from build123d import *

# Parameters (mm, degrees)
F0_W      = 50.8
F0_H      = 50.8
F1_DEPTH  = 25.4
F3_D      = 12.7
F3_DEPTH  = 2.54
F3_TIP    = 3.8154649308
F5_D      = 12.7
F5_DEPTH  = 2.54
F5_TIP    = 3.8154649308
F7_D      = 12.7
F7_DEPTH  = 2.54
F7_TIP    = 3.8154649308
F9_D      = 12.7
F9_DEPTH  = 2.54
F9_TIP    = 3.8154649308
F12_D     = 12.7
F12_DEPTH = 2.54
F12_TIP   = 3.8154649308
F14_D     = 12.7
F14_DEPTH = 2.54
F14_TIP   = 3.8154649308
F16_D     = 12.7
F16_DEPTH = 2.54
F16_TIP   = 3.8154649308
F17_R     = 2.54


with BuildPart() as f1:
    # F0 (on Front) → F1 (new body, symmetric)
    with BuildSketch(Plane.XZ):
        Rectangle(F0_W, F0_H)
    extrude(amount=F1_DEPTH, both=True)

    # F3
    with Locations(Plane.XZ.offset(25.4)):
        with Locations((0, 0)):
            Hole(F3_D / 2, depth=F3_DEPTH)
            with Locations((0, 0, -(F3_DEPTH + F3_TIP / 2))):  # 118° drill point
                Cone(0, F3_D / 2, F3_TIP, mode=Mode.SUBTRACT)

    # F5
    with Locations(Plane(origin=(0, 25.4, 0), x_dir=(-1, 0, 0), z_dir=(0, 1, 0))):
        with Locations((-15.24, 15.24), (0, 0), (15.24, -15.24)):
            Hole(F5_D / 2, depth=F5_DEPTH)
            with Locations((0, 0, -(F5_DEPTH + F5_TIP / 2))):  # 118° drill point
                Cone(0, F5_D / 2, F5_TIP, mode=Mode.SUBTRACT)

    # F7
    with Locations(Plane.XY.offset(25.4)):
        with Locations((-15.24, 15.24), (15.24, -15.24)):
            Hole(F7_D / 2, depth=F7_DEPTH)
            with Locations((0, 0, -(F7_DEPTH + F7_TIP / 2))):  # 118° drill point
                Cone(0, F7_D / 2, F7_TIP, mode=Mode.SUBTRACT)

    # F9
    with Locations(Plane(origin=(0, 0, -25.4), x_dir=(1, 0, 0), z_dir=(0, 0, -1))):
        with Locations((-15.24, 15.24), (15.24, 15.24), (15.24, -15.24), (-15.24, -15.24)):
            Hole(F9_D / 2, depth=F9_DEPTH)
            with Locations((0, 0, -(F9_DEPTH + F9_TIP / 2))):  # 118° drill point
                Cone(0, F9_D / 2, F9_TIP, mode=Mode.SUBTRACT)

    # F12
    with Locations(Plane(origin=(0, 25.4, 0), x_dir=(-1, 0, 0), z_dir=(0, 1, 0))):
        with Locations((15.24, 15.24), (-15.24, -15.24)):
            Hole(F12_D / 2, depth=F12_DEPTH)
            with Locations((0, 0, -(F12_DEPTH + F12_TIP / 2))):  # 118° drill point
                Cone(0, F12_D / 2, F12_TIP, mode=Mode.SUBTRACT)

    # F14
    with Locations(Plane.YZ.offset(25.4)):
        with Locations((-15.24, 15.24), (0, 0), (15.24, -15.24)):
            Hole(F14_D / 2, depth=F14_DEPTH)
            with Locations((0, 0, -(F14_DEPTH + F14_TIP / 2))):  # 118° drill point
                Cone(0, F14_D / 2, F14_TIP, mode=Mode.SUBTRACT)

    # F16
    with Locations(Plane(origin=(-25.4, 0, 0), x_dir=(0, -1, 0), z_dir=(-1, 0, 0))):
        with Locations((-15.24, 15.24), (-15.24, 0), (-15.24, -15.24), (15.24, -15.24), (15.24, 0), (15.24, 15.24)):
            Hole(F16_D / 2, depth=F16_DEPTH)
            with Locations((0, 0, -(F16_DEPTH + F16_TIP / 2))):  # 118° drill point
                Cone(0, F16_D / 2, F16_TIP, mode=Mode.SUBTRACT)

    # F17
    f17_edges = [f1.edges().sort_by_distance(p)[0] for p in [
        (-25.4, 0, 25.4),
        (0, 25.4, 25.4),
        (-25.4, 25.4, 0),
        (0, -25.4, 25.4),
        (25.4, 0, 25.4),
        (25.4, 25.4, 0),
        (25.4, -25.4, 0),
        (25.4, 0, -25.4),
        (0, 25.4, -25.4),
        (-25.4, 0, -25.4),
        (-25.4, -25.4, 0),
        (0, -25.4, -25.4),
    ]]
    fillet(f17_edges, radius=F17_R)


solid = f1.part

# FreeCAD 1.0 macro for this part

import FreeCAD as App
import Part
import Sketcher
from FreeCAD import Vector
Q = App.Units.Quantity


def edges_at(feature, points):
    """Names of the edges that pass closest to the given points."""
    edges = feature.Shape.Edges
    near = lambda p: min(range(len(edges)), key=lambda i: edges[i].distToShape(Part.Vertex(*p))[0])
    return sorted({f"Edge{near(p) + 1}" for p in points})

doc = App.newDocument("Part")
body = doc.addObject("PartDesign::Body", "Body")

sketch1 = body.newObject("Sketcher::SketchObject", "Sketch")
sketch1.AttachmentSupport = (doc.getObject("XZ_Plane"), [""])
sketch1.MapMode = "FlatFace"
sketch1.addGeometry([
    Part.LineSegment(Vector(-25, 25, 0), Vector(-25, -25, 0)),
    Part.LineSegment(Vector(-25, -25, 0), Vector(25, -25, 0)),
    Part.LineSegment(Vector(25, -25, 0), Vector(25, 25, 0)),
    Part.LineSegment(Vector(25, 25, 0), Vector(-25, 25, 0)),
], False)
sketch1.addConstraint([
    Sketcher.Constraint("Coincident", 0, 2, 1, 1),
    Sketcher.Constraint("Coincident", 1, 2, 2, 1),
    Sketcher.Constraint("Coincident", 2, 2, 3, 1),
    Sketcher.Constraint("Coincident", 3, 2, 0, 1),
    Sketcher.Constraint("Vertical", 0),
    Sketcher.Constraint("Horizontal", 1),
    Sketcher.Constraint("Vertical", 2),
    Sketcher.Constraint("Horizontal", 3),
    Sketcher.Constraint("Symmetric", 0, 2, 2, 2, -1, 1),
    Sketcher.Constraint("Equal", 3, 0),
    Sketcher.Constraint("DistanceX", 1, 1, 1, 2, Q("2 in")),
])
pad1 = body.newObject("PartDesign::Pad", "Pad")
pad1.Profile = sketch1
pad1.Length = Q("2 in")
pad1.Midplane = True

sketch2 = body.newObject("Sketcher::SketchObject", "Sketch001")
sketch2.AttachmentSupport = (doc.getObject("XZ_Plane"), [""])
sketch2.MapMode = "FlatFace"
sketch2.AttachmentOffset = App.Placement(Vector(0, 0, 1 * 25.4), App.Rotation())
sketch2.addGeometry(Part.Circle(Vector(0, 0, 0), Vector(0, 0, 1), 6), False)
sketch2.addConstraint([
    Sketcher.Constraint("Coincident", 0, 3, -1, 1),
    Sketcher.Constraint("Diameter", 0, Q("0.5 in")),
])
doc.recompute()
hole = body.newObject("PartDesign::Hole", "Hole")
hole.Profile = sketch2
hole.ThreadType = "None"
hole.Diameter = Q("0.5 in")
hole.DepthType = "Dimension"
hole.Depth = Q("0.1 in")
hole.DrillPoint = "Angled"
hole.DrillPointAngle = 118

sketch3 = body.newObject("Sketcher::SketchObject", "Sketch002")
sketch3.AttachmentSupport = (doc.getObject("XZ_Plane"), [""])
sketch3.MapMode = "FlatFace"
sketch3.AttachmentOffset = App.Placement(Vector(0, 0, -1 * 25.4), App.Rotation())
sketch3.addGeometry([
    Part.Circle(Vector(15, 15, 0), Vector(0, 0, 1), 6),
    Part.Circle(Vector(0, 0, 0), Vector(0, 0, 1), 6),
    Part.Circle(Vector(-15, -15, 0), Vector(0, 0, 1), 6),
], False)
sketch3.addConstraint([
    Sketcher.Constraint("Coincident", 1, 3, -1, 1),
    Sketcher.Constraint("Equal", 0, 1),
    Sketcher.Constraint("Equal", 1, 2),
    Sketcher.Constraint("Symmetric", 0, 3, 2, 3, -1, 1),
    Sketcher.Constraint("Diameter", 0, Q("0.5 in")),
    Sketcher.Constraint("DistanceX", -1, 1, 0, 3, Q("0.6 in")),
    Sketcher.Constraint("DistanceY", -1, 1, 0, 3, Q("0.6 in")),
])
doc.recompute()
hole2 = body.newObject("PartDesign::Hole", "Hole001")
hole2.Profile = sketch3
hole2.ThreadType = "None"
hole2.Diameter = Q("0.5 in")
hole2.DepthType = "Dimension"
hole2.Depth = Q("0.1 in")
hole2.DrillPoint = "Angled"
hole2.DrillPointAngle = 118
hole2.Reversed = True

sketch4 = body.newObject("Sketcher::SketchObject", "Sketch003")
sketch4.AttachmentSupport = (doc.getObject("XY_Plane"), [""])
sketch4.MapMode = "FlatFace"
sketch4.AttachmentOffset = App.Placement(Vector(0, 0, 1 * 25.4), App.Rotation())
sketch4.addGeometry([
    Part.Circle(Vector(-15, 15, 0), Vector(0, 0, 1), 6),
    Part.Circle(Vector(15, -15, 0), Vector(0, 0, 1), 6),
], False)
sketch4.addConstraint([
    Sketcher.Constraint("Equal", 0, 1),
    Sketcher.Constraint("Symmetric", 0, 3, 1, 3, -1, 1),
    Sketcher.Constraint("Diameter", 0, Q("0.5 in")),
    Sketcher.Constraint("DistanceX", 0, 3, -1, 1, Q("0.6 in")),
    Sketcher.Constraint("DistanceY", -1, 1, 0, 3, Q("0.6 in")),
])
doc.recompute()
hole3 = body.newObject("PartDesign::Hole", "Hole002")
hole3.Profile = sketch4
hole3.ThreadType = "None"
hole3.Diameter = Q("0.5 in")
hole3.DepthType = "Dimension"
hole3.Depth = Q("0.1 in")
hole3.DrillPoint = "Angled"
hole3.DrillPointAngle = 118

sketch5 = body.newObject("Sketcher::SketchObject", "Sketch004")
sketch5.AttachmentSupport = (doc.getObject("XY_Plane"), [""])
sketch5.MapMode = "FlatFace"
sketch5.AttachmentOffset = App.Placement(Vector(0, 0, -1 * 25.4), App.Rotation())
sketch5.addGeometry([
    Part.Circle(Vector(-15, -15, 0), Vector(0, 0, 1), 6),
    Part.Circle(Vector(15, -15, 0), Vector(0, 0, 1), 6),
    Part.Circle(Vector(15, 15, 0), Vector(0, 0, 1), 6),
    Part.Circle(Vector(-15, 15, 0), Vector(0, 0, 1), 6),
], False)
sketch5.addConstraint([
    Sketcher.Constraint("Equal", 0, 1),
    Sketcher.Constraint("Equal", 1, 2),
    Sketcher.Constraint("Equal", 2, 3),
    Sketcher.Constraint("Symmetric", 0, 3, 2, 3, -1, 1),
    Sketcher.Constraint("Symmetric", 1, 3, 3, 3, -1, 1),
    Sketcher.Constraint("Symmetric", 0, 3, 1, 3, -2),
    Sketcher.Constraint("Diameter", 0, Q("0.5 in")),
    Sketcher.Constraint("DistanceX", 0, 3, -1, 1, Q("0.6 in")),
    Sketcher.Constraint("DistanceY", 0, 3, -1, 1, Q("0.6 in")),
])
doc.recompute()
hole4 = body.newObject("PartDesign::Hole", "Hole003")
hole4.Profile = sketch5
hole4.ThreadType = "None"
hole4.Diameter = Q("0.5 in")
hole4.DepthType = "Dimension"
hole4.Depth = Q("0.1 in")
hole4.DrillPoint = "Angled"
hole4.DrillPointAngle = 118
hole4.Reversed = True

sketch6 = body.newObject("Sketcher::SketchObject", "Sketch005")
sketch6.AttachmentSupport = (doc.getObject("XZ_Plane"), [""])
sketch6.MapMode = "FlatFace"
sketch6.AttachmentOffset = App.Placement(Vector(0, 0, -1 * 25.4), App.Rotation())
sketch6.addGeometry([
    Part.Circle(Vector(-15, 15, 0), Vector(0, 0, 1), 6),
    Part.Circle(Vector(15, -15, 0), Vector(0, 0, 1), 6),
], False)
sketch6.addConstraint([
    Sketcher.Constraint("Equal", 0, 1),
    Sketcher.Constraint("Symmetric", 0, 3, 1, 3, -1, 1),
    Sketcher.Constraint("Diameter", 0, Q("0.5 in")),
    Sketcher.Constraint("DistanceX", 0, 3, -1, 1, Q("0.6 in")),
    Sketcher.Constraint("DistanceY", -1, 1, 0, 3, Q("0.6 in")),
])
doc.recompute()
hole5 = body.newObject("PartDesign::Hole", "Hole004")
hole5.Profile = sketch6
hole5.ThreadType = "None"
hole5.Diameter = Q("0.5 in")
hole5.DepthType = "Dimension"
hole5.Depth = Q("0.1 in")
hole5.DrillPoint = "Angled"
hole5.DrillPointAngle = 118
hole5.Reversed = True

sketch7 = body.newObject("Sketcher::SketchObject", "Sketch006")
sketch7.AttachmentSupport = (doc.getObject("YZ_Plane"), [""])
sketch7.MapMode = "FlatFace"
sketch7.AttachmentOffset = App.Placement(Vector(0, 0, 1 * 25.4), App.Rotation())
sketch7.addGeometry([
    Part.Circle(Vector(-15, 15, 0), Vector(0, 0, 1), 6),
    Part.Circle(Vector(0, 0, 0), Vector(0, 0, 1), 6),
    Part.Circle(Vector(15, -15, 0), Vector(0, 0, 1), 6),
], False)
sketch7.addConstraint([
    Sketcher.Constraint("Coincident", 1, 3, -1, 1),
    Sketcher.Constraint("Equal", 0, 1),
    Sketcher.Constraint("Equal", 1, 2),
    Sketcher.Constraint("Symmetric", 0, 3, 2, 3, -1, 1),
    Sketcher.Constraint("Diameter", 0, Q("0.5 in")),
    Sketcher.Constraint("DistanceX", 0, 3, -1, 1, Q("0.6 in")),
    Sketcher.Constraint("DistanceY", -1, 1, 0, 3, Q("0.6 in")),
])
doc.recompute()
hole6 = body.newObject("PartDesign::Hole", "Hole005")
hole6.Profile = sketch7
hole6.ThreadType = "None"
hole6.Diameter = Q("0.5 in")
hole6.DepthType = "Dimension"
hole6.Depth = Q("0.1 in")
hole6.DrillPoint = "Angled"
hole6.DrillPointAngle = 118

sketch8 = body.newObject("Sketcher::SketchObject", "Sketch007")
sketch8.AttachmentSupport = (doc.getObject("YZ_Plane"), [""])
sketch8.MapMode = "FlatFace"
sketch8.AttachmentOffset = App.Placement(Vector(0, 0, -1 * 25.4), App.Rotation())
sketch8.addGeometry([
    Part.Circle(Vector(15, 15, 0), Vector(0, 0, 1), 6),
    Part.Circle(Vector(15, 0, 0), Vector(0, 0, 1), 6),
    Part.Circle(Vector(15, -15, 0), Vector(0, 0, 1), 6),
    Part.Circle(Vector(-15, -15, 0), Vector(0, 0, 1), 6),
    Part.Circle(Vector(-15, 0, 0), Vector(0, 0, 1), 6),
    Part.Circle(Vector(-15, 15, 0), Vector(0, 0, 1), 6),
], False)
sketch8.addConstraint([
    Sketcher.Constraint("Equal", 0, 1),
    Sketcher.Constraint("Equal", 1, 2),
    Sketcher.Constraint("Equal", 2, 3),
    Sketcher.Constraint("Equal", 3, 4),
    Sketcher.Constraint("Equal", 4, 5),
    Sketcher.Constraint("Symmetric", 0, 3, 3, 3, -1, 1),
    Sketcher.Constraint("Symmetric", 1, 3, 4, 3, -1, 1),
    Sketcher.Constraint("Symmetric", 2, 3, 5, 3, -1, 1),
    Sketcher.Constraint("Symmetric", 2, 3, 3, 3, -2),
    Sketcher.Constraint("PointOnObject", 1, 3, -1),
    Sketcher.Constraint("Vertical", 0, 3, 1, 3),
    Sketcher.Constraint("Diameter", 0, Q("0.5 in")),
    Sketcher.Constraint("DistanceX", -1, 1, 0, 3, Q("0.6 in")),
    Sketcher.Constraint("DistanceY", -1, 1, 0, 3, Q("0.6 in")),
])
doc.recompute()
hole7 = body.newObject("PartDesign::Hole", "Hole006")
hole7.Profile = sketch8
hole7.ThreadType = "None"
hole7.Diameter = Q("0.5 in")
hole7.DepthType = "Dimension"
hole7.Depth = Q("0.1 in")
hole7.DrillPoint = "Angled"
hole7.DrillPointAngle = 118
hole7.Reversed = True
doc.recompute()

fillet = body.newObject("PartDesign::Fillet", "Fillet")
fillet.Base = (hole7, edges_at(hole7, [
    (-25.4, 0, 25.4),
    (0, 25.4, 25.4),
    (-25.4, 25.4, 0),
    (0, -25.4, 25.4),
    (25.4, 0, 25.4),
    (25.4, 25.4, 0),
    (25.4, -25.4, 0),
    (25.4, 0, -25.4),
    (0, 25.4, -25.4),
    (-25.4, 0, -25.4),
    (-25.4, -25.4, 0),
    (0, -25.4, -25.4),
]))
fillet.Radius = Q("0.1 in")

doc.recompute()
